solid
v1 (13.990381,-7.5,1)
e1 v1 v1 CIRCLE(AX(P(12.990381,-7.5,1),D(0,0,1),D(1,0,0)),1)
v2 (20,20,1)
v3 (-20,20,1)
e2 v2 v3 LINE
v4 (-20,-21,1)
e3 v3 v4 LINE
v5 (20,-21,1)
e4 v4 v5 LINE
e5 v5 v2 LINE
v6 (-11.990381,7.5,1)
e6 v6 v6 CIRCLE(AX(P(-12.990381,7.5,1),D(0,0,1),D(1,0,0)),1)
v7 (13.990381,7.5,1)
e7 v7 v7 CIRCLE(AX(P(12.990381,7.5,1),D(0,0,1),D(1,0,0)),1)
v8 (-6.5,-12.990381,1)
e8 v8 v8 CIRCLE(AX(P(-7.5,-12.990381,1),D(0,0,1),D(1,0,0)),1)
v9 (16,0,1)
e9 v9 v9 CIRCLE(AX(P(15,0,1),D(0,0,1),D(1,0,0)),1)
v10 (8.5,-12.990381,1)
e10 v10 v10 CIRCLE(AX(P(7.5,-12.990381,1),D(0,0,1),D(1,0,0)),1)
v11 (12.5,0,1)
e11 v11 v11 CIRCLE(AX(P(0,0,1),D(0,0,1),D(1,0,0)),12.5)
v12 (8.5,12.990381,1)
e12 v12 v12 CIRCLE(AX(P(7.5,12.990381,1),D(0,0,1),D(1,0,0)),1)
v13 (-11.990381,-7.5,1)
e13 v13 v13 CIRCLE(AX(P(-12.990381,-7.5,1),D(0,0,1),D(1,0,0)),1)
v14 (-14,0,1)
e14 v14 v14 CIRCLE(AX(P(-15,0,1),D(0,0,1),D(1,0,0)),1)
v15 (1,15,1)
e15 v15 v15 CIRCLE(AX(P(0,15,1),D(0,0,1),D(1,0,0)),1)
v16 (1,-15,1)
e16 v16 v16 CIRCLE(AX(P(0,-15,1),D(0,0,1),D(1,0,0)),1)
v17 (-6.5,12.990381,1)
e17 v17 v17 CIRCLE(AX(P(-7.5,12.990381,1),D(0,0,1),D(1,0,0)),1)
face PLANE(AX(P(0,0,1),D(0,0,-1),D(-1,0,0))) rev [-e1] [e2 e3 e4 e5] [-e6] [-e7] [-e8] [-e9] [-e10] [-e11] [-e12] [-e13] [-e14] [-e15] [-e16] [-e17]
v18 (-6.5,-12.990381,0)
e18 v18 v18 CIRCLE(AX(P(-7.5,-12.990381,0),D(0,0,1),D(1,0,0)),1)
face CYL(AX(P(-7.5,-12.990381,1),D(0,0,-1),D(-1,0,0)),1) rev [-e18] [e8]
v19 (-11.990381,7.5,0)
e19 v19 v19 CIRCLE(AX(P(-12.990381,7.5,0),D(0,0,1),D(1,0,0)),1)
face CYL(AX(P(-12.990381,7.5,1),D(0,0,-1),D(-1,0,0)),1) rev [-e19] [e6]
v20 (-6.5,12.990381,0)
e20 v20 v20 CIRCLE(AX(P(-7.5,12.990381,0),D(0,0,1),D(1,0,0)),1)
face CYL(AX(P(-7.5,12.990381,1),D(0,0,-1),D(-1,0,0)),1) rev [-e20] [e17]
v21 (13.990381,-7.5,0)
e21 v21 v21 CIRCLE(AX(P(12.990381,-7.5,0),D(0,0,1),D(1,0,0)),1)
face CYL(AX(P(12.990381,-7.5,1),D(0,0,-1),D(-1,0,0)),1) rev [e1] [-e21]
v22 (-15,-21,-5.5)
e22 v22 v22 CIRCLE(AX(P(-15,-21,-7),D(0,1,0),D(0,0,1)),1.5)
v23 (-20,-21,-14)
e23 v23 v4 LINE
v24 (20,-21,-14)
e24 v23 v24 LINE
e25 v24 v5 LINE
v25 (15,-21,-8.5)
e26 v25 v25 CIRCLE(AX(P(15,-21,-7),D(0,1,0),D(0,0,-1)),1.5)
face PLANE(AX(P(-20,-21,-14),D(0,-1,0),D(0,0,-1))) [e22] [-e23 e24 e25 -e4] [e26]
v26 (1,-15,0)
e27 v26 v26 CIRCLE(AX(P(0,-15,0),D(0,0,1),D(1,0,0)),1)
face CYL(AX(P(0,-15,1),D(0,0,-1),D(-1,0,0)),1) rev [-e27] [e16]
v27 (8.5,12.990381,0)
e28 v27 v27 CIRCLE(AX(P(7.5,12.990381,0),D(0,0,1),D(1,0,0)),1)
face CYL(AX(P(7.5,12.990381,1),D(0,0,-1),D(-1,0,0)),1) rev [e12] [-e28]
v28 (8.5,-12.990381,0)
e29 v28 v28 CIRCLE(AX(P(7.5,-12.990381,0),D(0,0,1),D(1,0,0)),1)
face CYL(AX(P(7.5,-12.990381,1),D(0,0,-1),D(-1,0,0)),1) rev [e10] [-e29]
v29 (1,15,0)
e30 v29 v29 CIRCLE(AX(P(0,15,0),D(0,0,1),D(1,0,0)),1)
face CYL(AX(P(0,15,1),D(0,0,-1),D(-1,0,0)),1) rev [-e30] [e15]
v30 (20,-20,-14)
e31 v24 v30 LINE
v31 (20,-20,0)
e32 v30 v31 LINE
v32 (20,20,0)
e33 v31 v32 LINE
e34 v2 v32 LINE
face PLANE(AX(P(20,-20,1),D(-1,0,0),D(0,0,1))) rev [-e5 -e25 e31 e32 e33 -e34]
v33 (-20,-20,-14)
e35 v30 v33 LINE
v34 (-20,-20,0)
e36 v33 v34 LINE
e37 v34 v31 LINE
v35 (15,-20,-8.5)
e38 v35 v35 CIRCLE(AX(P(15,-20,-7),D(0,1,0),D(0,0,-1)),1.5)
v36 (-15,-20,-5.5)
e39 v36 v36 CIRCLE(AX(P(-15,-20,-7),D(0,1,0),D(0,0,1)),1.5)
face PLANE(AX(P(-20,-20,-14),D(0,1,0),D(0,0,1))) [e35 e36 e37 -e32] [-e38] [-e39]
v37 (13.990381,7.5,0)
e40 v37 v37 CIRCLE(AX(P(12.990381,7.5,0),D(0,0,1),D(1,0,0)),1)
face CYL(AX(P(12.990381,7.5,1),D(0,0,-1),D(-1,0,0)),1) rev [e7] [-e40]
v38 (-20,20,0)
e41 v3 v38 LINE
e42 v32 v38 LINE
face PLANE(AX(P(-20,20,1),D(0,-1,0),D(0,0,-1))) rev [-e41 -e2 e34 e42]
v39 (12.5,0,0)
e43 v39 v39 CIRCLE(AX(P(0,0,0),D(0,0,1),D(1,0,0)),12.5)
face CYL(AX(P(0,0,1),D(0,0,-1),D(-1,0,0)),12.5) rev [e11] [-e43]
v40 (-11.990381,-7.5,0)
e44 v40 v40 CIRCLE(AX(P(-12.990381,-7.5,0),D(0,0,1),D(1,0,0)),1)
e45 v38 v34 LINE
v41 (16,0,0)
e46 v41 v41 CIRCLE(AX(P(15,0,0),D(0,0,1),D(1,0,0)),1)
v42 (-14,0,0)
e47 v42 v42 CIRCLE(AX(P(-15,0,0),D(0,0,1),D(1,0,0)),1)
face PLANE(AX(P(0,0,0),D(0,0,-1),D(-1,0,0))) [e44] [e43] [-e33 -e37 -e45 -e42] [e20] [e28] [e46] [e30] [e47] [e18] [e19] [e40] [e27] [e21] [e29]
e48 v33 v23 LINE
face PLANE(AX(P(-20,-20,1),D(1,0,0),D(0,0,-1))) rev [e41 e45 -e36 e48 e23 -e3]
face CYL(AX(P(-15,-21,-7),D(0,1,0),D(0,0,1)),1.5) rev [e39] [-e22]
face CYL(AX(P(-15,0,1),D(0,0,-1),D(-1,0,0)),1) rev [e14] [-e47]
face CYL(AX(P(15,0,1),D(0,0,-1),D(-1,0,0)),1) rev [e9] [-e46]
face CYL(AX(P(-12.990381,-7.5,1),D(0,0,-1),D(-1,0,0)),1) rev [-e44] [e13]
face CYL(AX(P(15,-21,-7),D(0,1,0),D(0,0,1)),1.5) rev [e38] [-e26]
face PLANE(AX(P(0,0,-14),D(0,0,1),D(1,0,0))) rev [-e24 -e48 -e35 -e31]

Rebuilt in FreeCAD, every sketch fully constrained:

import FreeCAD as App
import Part
import Sketcher
from FreeCAD import Vector
Q = App.Units.Quantity

doc = App.newDocument("Part")
params = doc.addObject("Spreadsheet::Sheet", "Params")
for row, (alias, value) in enumerate([
    ("sketch1_diameter", "2 mm"),
    ("sketch1_diameter2", "25 mm"),
    ("sketch1_width", "40 mm"),
    ("pad1_length", "1 mm"),
    ("sketch2_width", "40 mm"),
    ("sketch2_height", "1 mm"),
    ("pad2_length", "15 mm"),
    ("sketch3_diameter", "3 mm"),
], start=1):
    params.set(f"A{row}", alias)
    params.set(f"B{row}", "=" + value)
    params.setAlias(f"B{row}", alias)

body = doc.addObject("PartDesign::Body", "Body")

# Sketch on XY plane
sketch1 = body.newObject("Sketcher::SketchObject", "Sketch")
sketch1.AttachmentSupport = (doc.getObject("XY_Plane"), [""])
sketch1.MapMode = "FlatFace"
sketch1.addGeometry([
    Part.LineSegment(Vector(-20, 20, 0), Vector(-20, -20, 0)),  # 0
    Part.LineSegment(Vector(-20, -20, 0), Vector(20, -20, 0)),  # 1
    Part.LineSegment(Vector(20, -20, 0), Vector(20, 20, 0)),  # 2
    Part.LineSegment(Vector(20, 20, 0), Vector(-20, 20, 0)),  # 3
    Part.Circle(Vector(-7.5, -13, 0), Vector(0, 0, 1), 1),  # 4
    Part.Circle(Vector(-13, -7.5, 0), Vector(0, 0, 1), 1),  # 5
    Part.Circle(Vector(0, -15, 0), Vector(0, 0, 1), 1),  # 6
    Part.Circle(Vector(7.5, -13, 0), Vector(0, 0, 1), 1),  # 7
    Part.Circle(Vector(13, -7.5, 0), Vector(0, 0, 1), 1),  # 8
    Part.Circle(Vector(-15, 0, 0), Vector(0, 0, 1), 1),  # 9
    Part.Circle(Vector(-13, 7.5, 0), Vector(0, 0, 1), 1),  # 10
    Part.Circle(Vector(-7.5, 13, 0), Vector(0, 0, 1), 1),  # 11
    Part.Circle(Vector(0, 0, 0), Vector(0, 0, 1), 12.5),  # 12
    Part.Circle(Vector(15, 0, 0), Vector(0, 0, 1), 1),  # 13
    Part.Circle(Vector(13, 7.5, 0), Vector(0, 0, 1), 1),  # 14
    Part.Circle(Vector(0, 15, 0), Vector(0, 0, 1), 1),  # 15
    Part.Circle(Vector(7.5, 13, 0), Vector(0, 0, 1), 1),  # 16
], False)
sketch1.addConstraint([
    Sketcher.Constraint("Coincident", 0, 2, 1, 1),
    Sketcher.Constraint("Coincident", 1, 2, 2, 1),
    Sketcher.Constraint("Coincident", 2, 2, 3, 1),
    Sketcher.Constraint("Coincident", 3, 2, 0, 1),
    Sketcher.Constraint("Vertical", 0),
    Sketcher.Constraint("Horizontal", 1),
    Sketcher.Constraint("Vertical", 2),
    Sketcher.Constraint("Horizontal", 3),
    Sketcher.Constraint("Coincident", 12, 3, -1, 1),
    Sketcher.Constraint("Equal", 4, 5),
    Sketcher.Constraint("Equal", 5, 6),
    Sketcher.Constraint("Equal", 6, 7),
    Sketcher.Constraint("Equal", 7, 8),
    Sketcher.Constraint("Equal", 8, 9),
    Sketcher.Constraint("Equal", 9, 10),
    Sketcher.Constraint("Equal", 10, 11),
    Sketcher.Constraint("Equal", 11, 13),
    Sketcher.Constraint("Equal", 13, 14),
    Sketcher.Constraint("Equal", 14, 15),
    Sketcher.Constraint("Equal", 15, 16),
    Sketcher.Constraint("Symmetric", 8, 3, 10, 3, -1, 1),
    Sketcher.Constraint("Symmetric", 7, 3, 11, 3, -1, 1),
    Sketcher.Constraint("Symmetric", 9, 3, 13, 3, -1, 1),
    Sketcher.Constraint("Symmetric", 5, 3, 14, 3, -1, 1),
    Sketcher.Constraint("Symmetric", 6, 3, 15, 3, -1, 1),
    Sketcher.Constraint("Symmetric", 4, 3, 16, 3, -1, 1),
    Sketcher.Constraint("Symmetric", 0, 2, 2, 2, -1, 1),
    Sketcher.Constraint("Symmetric", 4, 3, 7, 3, -2),
    Sketcher.Constraint("Symmetric", 5, 3, 8, 3, -2),
    Sketcher.Constraint("PointOnObject", 6, 3, -2),
    Sketcher.Constraint("PointOnObject", 9, 3, -1),
    Sketcher.Constraint("Equal", 3, 0),
    Sketcher.Constraint("Diameter", 4, Q("2 mm")),
    Sketcher.Constraint("Diameter", 12, Q("25 mm")),
    Sketcher.Constraint("DistanceX", 1, 1, 1, 2, Q("40 mm")),
    Sketcher.Constraint("DistanceY", 6, 3, -1, 1, Q("15 mm")),
    Sketcher.Constraint("DistanceX", 9, 3, -1, 1, Q("15 mm")),
    Sketcher.Constraint("DistanceX", 4, 3, 7, 3, Q("15 mm")),
    Sketcher.Constraint("DistanceY", 5, 3, 10, 3, Q("15 mm")),
    Sketcher.Constraint("DistanceY", 4, 3, -1, 1, Q("12.990381 mm")),
    Sketcher.Constraint("DistanceX", 5, 3, -1, 1, Q("12.990381 mm")),
])
sketch1.setExpression("Constraints[32]", "Params.sketch1_diameter")
sketch1.setExpression("Constraints[33]", "Params.sketch1_diameter2")
sketch1.setExpression("Constraints[34]", "Params.sketch1_width")
pad1 = body.newObject("PartDesign::Pad", "Pad")
pad1.Profile = sketch1
pad1.setExpression("Length", "Params.pad1_length")

# Sketch on XY plane
sketch2 = body.newObject("Sketcher::SketchObject", "Sketch001")
sketch2.AttachmentSupport = (doc.getObject("XY_Plane"), [""])
sketch2.MapMode = "FlatFace"
sketch2.AttachmentOffset = App.Placement(Vector(0, 0, 1), App.Rotation())
sketch2.addGeometry([
    Part.LineSegment(Vector(-20, -20, 0), Vector(-20, -21, 0)),
    Part.LineSegment(Vector(-20, -21, 0), Vector(20, -21, 0)),
    Part.LineSegment(Vector(20, -21, 0), Vector(20, -20, 0)),
    Part.LineSegment(Vector(20, -20, 0), Vector(-20, -20, 0)),
], False)
sketch2.addConstraint([
    Sketcher.Constraint("Coincident", 0, 2, 1, 1),
    Sketcher.Constraint("Coincident", 1, 2, 2, 1),
    Sketcher.Constraint("Coincident", 2, 2, 3, 1),
    Sketcher.Constraint("Coincident", 3, 2, 0, 1),
    Sketcher.Constraint("Vertical", 0),
    Sketcher.Constraint("Horizontal", 1),
    Sketcher.Constraint("Vertical", 2),
    Sketcher.Constraint("Horizontal", 3),
    Sketcher.Constraint("DistanceX", 1, 1, 1, 2, Q("40 mm")),
    Sketcher.Constraint("DistanceY", 0, 2, 0, 1, Q("1 mm")),
    Sketcher.Constraint("DistanceX", 0, 2, -1, 1, Q("20 mm")),
    Sketcher.Constraint("DistanceY", 0, 2, -1, 1, Q("21 mm")),
])
sketch2.setExpression("Constraints[8]", "Params.sketch2_width")
sketch2.setExpression("Constraints[9]", "Params.sketch2_height")
pad2 = body.newObject("PartDesign::Pad", "Pad001")
pad2.Profile = sketch2
pad2.setExpression("Length", "Params.pad2_length")
pad2.Reversed = True

# Sketch on XZ plane
sketch3 = body.newObject("Sketcher::SketchObject", "Sketch002")
sketch3.AttachmentSupport = (doc.getObject("XZ_Plane"), [""])
sketch3.MapMode = "FlatFace"
sketch3.AttachmentOffset = App.Placement(Vector(0, 0, 20), App.Rotation())
sketch3.addGeometry([
    Part.Circle(Vector(-15, -7, 0), Vector(0, 0, 1), 1.5),
    Part.Circle(Vector(15, -7, 0), Vector(0, 0, 1), 1.5),
], False)
sketch3.addConstraint([
    Sketcher.Constraint("Equal", 0, 1),
    Sketcher.Constraint("Symmetric", 0, 3, 1, 3, -2),
    Sketcher.Constraint("Diameter", 0, Q("3 mm")),
    Sketcher.Constraint("DistanceX", 0, 3, -1, 1, Q("15 mm")),
    Sketcher.Constraint("DistanceY", 0, 3, -1, 1, Q("7 mm")),
])
sketch3.setExpression("Constraints[2]", "Params.sketch3_diameter")
pocket1 = body.newObject("PartDesign::Pocket", "Pocket")
pocket1.Profile = sketch3
pocket1.Type = "ThroughAll"
pocket1.Reversed = True

doc.recompute()
